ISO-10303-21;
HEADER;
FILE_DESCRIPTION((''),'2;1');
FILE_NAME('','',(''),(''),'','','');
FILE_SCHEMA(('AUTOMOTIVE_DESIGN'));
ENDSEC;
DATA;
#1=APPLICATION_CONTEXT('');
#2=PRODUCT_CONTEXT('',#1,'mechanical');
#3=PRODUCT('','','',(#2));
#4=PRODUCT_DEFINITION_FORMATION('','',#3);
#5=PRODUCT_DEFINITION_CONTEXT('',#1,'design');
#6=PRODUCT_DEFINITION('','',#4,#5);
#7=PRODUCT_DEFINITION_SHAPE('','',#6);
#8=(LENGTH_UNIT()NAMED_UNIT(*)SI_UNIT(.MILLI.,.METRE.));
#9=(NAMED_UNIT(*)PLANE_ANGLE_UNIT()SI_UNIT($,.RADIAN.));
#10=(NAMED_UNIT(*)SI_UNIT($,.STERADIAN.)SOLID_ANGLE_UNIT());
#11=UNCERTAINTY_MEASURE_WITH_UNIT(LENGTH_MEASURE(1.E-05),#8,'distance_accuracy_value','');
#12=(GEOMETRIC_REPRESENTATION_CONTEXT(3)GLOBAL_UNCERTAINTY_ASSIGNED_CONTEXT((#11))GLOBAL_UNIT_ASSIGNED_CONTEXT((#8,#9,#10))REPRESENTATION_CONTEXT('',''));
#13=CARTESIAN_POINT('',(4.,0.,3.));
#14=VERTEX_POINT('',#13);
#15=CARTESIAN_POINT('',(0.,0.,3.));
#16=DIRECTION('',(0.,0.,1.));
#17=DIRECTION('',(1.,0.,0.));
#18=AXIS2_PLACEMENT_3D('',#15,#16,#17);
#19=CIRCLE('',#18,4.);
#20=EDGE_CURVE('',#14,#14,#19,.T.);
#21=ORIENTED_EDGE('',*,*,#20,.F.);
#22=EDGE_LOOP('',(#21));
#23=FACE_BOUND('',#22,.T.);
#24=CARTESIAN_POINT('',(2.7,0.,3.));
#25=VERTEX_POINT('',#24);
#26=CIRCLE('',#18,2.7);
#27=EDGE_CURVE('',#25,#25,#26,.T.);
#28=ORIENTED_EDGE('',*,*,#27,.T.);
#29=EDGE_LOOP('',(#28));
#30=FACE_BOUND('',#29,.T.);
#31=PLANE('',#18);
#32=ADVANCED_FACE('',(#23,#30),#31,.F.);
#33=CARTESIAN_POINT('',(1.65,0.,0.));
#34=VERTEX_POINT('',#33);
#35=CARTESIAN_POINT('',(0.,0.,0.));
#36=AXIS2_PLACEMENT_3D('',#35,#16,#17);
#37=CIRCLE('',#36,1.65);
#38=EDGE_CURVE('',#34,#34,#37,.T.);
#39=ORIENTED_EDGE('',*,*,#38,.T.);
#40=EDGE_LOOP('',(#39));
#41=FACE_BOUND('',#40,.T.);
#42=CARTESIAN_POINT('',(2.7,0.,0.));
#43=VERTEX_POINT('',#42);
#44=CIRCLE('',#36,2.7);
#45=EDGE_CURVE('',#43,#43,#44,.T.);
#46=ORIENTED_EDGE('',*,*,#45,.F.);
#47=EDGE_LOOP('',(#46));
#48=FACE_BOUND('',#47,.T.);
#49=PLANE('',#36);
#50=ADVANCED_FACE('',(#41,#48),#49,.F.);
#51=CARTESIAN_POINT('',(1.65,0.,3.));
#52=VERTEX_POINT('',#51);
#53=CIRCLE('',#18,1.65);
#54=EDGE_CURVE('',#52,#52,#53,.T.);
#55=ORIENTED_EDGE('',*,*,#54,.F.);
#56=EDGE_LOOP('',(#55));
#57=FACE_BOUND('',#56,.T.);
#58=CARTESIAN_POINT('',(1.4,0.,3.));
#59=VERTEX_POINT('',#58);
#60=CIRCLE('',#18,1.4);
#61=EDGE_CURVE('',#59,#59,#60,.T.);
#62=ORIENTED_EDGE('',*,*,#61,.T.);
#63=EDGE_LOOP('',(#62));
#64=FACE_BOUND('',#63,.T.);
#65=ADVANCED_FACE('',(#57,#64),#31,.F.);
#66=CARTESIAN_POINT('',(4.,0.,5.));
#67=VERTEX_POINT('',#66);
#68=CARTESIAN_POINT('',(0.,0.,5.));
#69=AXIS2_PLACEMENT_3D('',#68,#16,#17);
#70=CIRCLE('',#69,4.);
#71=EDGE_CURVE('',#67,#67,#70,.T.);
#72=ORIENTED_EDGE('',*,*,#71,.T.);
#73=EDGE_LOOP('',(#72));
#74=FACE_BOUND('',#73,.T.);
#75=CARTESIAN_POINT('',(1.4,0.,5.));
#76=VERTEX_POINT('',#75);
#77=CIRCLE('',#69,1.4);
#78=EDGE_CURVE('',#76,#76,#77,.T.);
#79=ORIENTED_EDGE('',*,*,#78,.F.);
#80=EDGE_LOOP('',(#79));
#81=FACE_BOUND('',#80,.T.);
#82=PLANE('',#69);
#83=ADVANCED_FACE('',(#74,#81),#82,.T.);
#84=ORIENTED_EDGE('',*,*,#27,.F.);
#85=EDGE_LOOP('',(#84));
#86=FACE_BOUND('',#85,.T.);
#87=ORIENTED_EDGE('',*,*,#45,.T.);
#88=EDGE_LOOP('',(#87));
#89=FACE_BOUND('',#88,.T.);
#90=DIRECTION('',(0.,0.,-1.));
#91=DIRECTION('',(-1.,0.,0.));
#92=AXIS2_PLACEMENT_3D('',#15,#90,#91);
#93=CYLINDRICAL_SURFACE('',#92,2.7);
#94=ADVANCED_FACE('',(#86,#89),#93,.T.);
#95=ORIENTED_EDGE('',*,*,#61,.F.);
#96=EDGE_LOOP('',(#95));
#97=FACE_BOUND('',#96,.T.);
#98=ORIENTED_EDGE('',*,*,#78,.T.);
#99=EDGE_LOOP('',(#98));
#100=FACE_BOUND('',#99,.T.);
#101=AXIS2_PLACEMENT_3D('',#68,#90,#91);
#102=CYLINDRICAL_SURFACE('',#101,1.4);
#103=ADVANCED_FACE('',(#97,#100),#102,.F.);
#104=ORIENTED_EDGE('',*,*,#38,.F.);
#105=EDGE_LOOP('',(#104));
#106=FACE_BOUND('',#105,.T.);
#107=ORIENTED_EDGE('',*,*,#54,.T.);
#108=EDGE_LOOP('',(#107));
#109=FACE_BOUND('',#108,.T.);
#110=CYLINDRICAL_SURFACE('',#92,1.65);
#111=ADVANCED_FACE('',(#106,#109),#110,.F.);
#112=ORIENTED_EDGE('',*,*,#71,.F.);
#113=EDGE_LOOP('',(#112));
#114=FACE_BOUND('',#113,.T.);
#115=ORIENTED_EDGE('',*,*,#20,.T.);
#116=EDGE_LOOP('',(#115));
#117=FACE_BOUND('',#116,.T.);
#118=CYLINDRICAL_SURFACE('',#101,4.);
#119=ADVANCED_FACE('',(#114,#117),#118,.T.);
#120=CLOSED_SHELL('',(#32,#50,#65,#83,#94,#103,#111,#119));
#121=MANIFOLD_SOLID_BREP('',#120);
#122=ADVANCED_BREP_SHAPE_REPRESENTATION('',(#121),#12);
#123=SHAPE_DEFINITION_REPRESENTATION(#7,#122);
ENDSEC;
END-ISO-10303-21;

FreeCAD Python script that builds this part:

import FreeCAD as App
import Part
import Sketcher

V = App.Vector
Q = App.Units.Quantity

doc = App.newDocument("Part")
params = doc.addObject("Spreadsheet::Sheet", "Params")
for row, (alias, value) in enumerate([
    ("sketch1_diameter", "5.4 mm"),
    ("sketch1_diameter2", "3.3 mm"),
    ("pad1_length", "3 mm"),
    ("sketch2_diameter", "8 mm"),
    ("sketch2_diameter2", "2.8 mm"),
    ("pad2_length", "2 mm"),
], start=1):
    params.set(f"A{row}", alias)
    params.set(f"B{row}", "=" + value)
    params.setAlias(f"B{row}", alias)

body = doc.addObject("PartDesign::Body", "Body")

# Sketch on XY plane
sketch1 = body.newObject("Sketcher::SketchObject", "Sketch")
sketch1.AttachmentSupport = (doc.getObject("XY_Plane"), [""])
sketch1.MapMode = "FlatFace"
sketch1.addGeometry([
    Part.Circle(V(0, 0, 0), V(0, 0, 1), 2.7),
    Part.Circle(V(0, 0, 0), V(0, 0, 1), 1.6),
], False)
sketch1.addConstraint([
    Sketcher.Constraint("Coincident", 0, 3, -1, 1),
    Sketcher.Constraint("Coincident", 1, 3, -1, 1),
    Sketcher.Constraint("Diameter", 0, Q("5.4 mm")),
    Sketcher.Constraint("Diameter", 1, Q("3.3 mm")),
])
sketch1.setExpression("Constraints[2]", "Params.sketch1_diameter")
sketch1.setExpression("Constraints[3]", "Params.sketch1_diameter2")
pad1 = body.newObject("PartDesign::Pad", "Pad")
pad1.Profile = sketch1
pad1.setExpression("Length", "Params.pad1_length")

# Sketch on XY plane
sketch2 = body.newObject("Sketcher::SketchObject", "Sketch001")
sketch2.AttachmentSupport = (doc.getObject("XY_Plane"), [""])
sketch2.MapMode = "FlatFace"
sketch2.AttachmentOffset = App.Placement(V(0, 0, 3), App.Rotation())
sketch2.addGeometry([
    Part.Circle(V(0, 0, 0), V(0, 0, 1), 4),
    Part.Circle(V(0, 0, 0), V(0, 0, 1), 1.4),
], False)
sketch2.addConstraint([
    Sketcher.Constraint("Coincident", 0, 3, -1, 1),
    Sketcher.Constraint("Coincident", 1, 3, -1, 1),
    Sketcher.Constraint("Diameter", 0, Q("8 mm")),
    Sketcher.Constraint("Diameter", 1, Q("2.8 mm")),
])
sketch2.setExpression("Constraints[2]", "Params.sketch2_diameter")
sketch2.setExpression("Constraints[3]", "Params.sketch2_diameter2")
pad2 = body.newObject("PartDesign::Pad", "Pad001")
pad2.Profile = sketch2
pad2.setExpression("Length", "Params.pad2_length")

doc.recompute()
